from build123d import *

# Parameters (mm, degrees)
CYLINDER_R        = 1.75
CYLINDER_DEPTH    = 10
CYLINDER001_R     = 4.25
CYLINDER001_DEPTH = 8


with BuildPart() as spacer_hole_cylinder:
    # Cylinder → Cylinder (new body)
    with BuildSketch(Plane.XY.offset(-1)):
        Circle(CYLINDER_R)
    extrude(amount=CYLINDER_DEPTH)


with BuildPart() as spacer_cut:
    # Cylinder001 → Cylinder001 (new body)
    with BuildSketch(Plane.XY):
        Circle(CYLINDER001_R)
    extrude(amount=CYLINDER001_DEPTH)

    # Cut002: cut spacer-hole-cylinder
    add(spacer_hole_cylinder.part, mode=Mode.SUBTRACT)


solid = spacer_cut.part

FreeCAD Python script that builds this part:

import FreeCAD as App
import Part
import Sketcher
from FreeCAD import Vector
Q = App.Units.Quantity

doc = App.newDocument("Part")
body = doc.addObject("PartDesign::Body", "Body")

# Sketch on XY plane
sketch1 = body.newObject("Sketcher::SketchObject", "Sketch")
sketch1.AttachmentSupport = (doc.getObject("XY_Plane"), [""])
sketch1.MapMode = "FlatFace"
sketch1.AttachmentOffset = App.Placement(Vector(0, 0, -1), App.Rotation())
sketch1.addGeometry(Part.Circle(Vector(0, 0, 0), Vector(0, 0, 1), 1.75), False)
sketch1.addConstraint(Sketcher.Constraint("Coincident", 0, 3, -1, 1))
sketch1.addConstraint(Sketcher.Constraint("Diameter", 0, Q("3.5 mm")))
pad1 = body.newObject("PartDesign::Pad", "Pad")
pad1.Profile = sketch1
pad1.Length = 10
body2 = doc.addObject("PartDesign::Body", "Body001")

# Sketch on XY plane
sketch2 = body2.newObject("Sketcher::SketchObject", "Sketch001")
sketch2.AttachmentSupport = (doc.getObject("XY_Plane001"), [""])
sketch2.MapMode = "FlatFace"
sketch2.addGeometry(Part.Circle(Vector(0, 0, 0), Vector(0, 0, 1), 4.25), False)
sketch2.addConstraint(Sketcher.Constraint("Coincident", 0, 3, -1, 1))
sketch2.addConstraint(Sketcher.Constraint("Diameter", 0, Q("8.5 mm")))
pad2 = body2.newObject("PartDesign::Pad", "Pad001")
pad2.Profile = sketch2
pad2.Length = 8
doc.recompute()

boolean = body2.newObject("PartDesign::Boolean", "Boolean")
boolean.Type = "Cut"
boolean.addObjects([body])

doc.recompute()
